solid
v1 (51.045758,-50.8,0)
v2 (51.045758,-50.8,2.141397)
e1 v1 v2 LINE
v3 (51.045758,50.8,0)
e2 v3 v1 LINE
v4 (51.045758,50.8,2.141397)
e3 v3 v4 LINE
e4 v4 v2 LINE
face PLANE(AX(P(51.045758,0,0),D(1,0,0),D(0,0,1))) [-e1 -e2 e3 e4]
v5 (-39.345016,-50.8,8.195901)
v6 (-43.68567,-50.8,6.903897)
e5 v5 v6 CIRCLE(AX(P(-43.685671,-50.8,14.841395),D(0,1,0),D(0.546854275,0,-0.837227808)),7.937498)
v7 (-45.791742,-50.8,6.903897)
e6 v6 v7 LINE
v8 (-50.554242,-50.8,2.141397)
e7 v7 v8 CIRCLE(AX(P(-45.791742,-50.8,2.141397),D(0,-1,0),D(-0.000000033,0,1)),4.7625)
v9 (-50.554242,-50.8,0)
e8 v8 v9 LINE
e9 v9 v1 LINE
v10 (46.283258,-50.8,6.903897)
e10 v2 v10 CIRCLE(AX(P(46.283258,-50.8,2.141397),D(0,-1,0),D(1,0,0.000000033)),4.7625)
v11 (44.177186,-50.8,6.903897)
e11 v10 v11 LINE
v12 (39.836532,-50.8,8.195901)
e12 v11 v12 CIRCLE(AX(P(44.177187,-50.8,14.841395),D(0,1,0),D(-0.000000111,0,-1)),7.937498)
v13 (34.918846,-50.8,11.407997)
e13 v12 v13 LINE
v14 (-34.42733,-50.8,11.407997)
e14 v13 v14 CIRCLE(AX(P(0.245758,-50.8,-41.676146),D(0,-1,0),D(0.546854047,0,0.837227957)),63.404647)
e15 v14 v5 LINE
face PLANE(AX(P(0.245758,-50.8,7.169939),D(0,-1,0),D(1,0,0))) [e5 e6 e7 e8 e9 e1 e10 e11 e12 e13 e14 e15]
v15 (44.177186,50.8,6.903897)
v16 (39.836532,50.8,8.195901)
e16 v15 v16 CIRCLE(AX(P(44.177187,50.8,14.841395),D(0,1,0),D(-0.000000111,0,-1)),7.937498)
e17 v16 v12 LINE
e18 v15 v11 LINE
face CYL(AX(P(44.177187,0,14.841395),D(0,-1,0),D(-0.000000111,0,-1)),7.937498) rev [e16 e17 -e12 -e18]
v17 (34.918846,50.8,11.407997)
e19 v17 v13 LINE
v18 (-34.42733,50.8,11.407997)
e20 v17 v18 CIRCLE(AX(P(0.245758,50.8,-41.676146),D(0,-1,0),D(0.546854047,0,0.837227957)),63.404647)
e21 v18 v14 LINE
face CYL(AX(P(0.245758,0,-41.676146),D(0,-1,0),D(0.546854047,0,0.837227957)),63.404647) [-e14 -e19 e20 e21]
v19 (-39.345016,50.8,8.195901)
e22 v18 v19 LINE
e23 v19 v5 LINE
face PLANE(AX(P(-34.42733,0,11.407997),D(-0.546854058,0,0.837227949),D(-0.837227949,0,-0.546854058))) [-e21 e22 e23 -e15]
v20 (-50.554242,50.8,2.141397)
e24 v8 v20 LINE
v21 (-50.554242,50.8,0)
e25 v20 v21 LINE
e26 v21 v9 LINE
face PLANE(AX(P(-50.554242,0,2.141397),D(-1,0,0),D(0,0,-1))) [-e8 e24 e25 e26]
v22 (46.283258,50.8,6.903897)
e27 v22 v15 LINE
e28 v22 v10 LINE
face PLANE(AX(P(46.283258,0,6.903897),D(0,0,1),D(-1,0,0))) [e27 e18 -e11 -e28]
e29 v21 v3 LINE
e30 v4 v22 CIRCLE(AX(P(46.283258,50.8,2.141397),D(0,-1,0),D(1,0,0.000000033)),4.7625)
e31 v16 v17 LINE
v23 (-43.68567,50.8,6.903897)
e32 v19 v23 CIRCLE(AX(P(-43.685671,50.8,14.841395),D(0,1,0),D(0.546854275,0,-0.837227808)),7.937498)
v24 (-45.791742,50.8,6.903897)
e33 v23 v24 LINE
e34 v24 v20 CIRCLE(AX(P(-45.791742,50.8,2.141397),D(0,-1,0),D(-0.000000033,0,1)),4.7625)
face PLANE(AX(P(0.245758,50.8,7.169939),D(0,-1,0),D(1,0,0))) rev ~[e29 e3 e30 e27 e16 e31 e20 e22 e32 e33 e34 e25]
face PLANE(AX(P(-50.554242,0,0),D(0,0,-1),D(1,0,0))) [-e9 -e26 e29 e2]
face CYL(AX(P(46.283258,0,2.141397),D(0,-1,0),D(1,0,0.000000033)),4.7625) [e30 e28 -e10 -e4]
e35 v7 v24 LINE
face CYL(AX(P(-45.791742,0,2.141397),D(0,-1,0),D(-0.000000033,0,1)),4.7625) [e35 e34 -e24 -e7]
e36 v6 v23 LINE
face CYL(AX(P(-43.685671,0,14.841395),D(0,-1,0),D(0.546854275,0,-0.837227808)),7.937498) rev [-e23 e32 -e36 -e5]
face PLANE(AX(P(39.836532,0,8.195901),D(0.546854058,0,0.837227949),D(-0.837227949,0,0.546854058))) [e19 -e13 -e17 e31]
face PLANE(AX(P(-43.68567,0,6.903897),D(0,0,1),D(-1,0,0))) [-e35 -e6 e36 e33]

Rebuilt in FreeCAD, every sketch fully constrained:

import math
import FreeCAD as App
import Part
import Sketcher

V = App.Vector
Q = App.Units.Quantity

doc = App.newDocument("Part")
body = doc.addObject("PartDesign::Body", "Body")

sketch1 = body.newObject("Sketcher::SketchObject", "Sketch")
sketch1.AttachmentSupport = (doc.getObject("XZ_Plane"), [""])
sketch1.MapMode = "FlatFace"
sketch1.addGeometry([
    Part.LineSegment(V(-50.6, 2.1, 0), V(-50.6, 0, 0)),
    Part.LineSegment(V(-50.6, 0, 0), V(51, 0, 0)),
    Part.LineSegment(V(51, 0, 0), V(51, 2.1, 0)),
    Part.ArcOfCircle(Part.Circle(V(46.3, 2.1, 0), V(0, 0, 1), 4.8), math.radians(0), math.radians(90)),
    Part.LineSegment(V(46.3, 6.9, 0), V(44.2, 6.9, 0)),
    Part.ArcOfCircle(Part.Circle(V(44.2, 14.8, 0), V(0, 0, 1), 7.9), math.radians(-123), math.radians(-90)),
    Part.LineSegment(V(39.8, 8.2, 0), V(34.9, 11.4, 0)),
    Part.ArcOfCircle(Part.Circle(V(0.2, -41.7, 0), V(0, 0, 1), 63.4), math.radians(57), math.radians(123)),
    Part.LineSegment(V(-34.4, 11.4, 0), V(-39.3, 8.2, 0)),
    Part.ArcOfCircle(Part.Circle(V(-43.7, 14.8, 0), V(0, 0, 1), 7.9), math.radians(-90), math.radians(-57)),
    Part.LineSegment(V(-43.7, 6.9, 0), V(-45.8, 6.9, 0)),
    Part.ArcOfCircle(Part.Circle(V(-45.8, 2.1, 0), V(0, 0, 1), 4.8), math.radians(90), math.radians(180)),
], False)
sketch1.addConstraint([
    Sketcher.Constraint("Coincident", 0, 2, 1, 1),
    Sketcher.Constraint("Coincident", 1, 2, 2, 1),
    Sketcher.Constraint("Tangent", 2, 2, 3, 1),
    Sketcher.Constraint("Tangent", 3, 2, 4, 1),
    Sketcher.Constraint("Tangent", 4, 2, 5, 2),
    Sketcher.Constraint("Tangent", 5, 1, 6, 1),
    Sketcher.Constraint("Tangent", 6, 2, 7, 1),
    Sketcher.Constraint("Tangent", 7, 2, 8, 1),
    Sketcher.Constraint("Tangent", 8, 2, 9, 2),
    Sketcher.Constraint("Tangent", 9, 1, 10, 1),
    Sketcher.Constraint("Tangent", 10, 2, 11, 1),
    Sketcher.Constraint("Tangent", 11, 2, 0, 1),
    Sketcher.Constraint("Vertical", 0),
    Sketcher.Constraint("Horizontal", 1),
    Sketcher.Constraint("Vertical", 2),
    Sketcher.Constraint("Horizontal", 4),
    Sketcher.Constraint("Horizontal", 10),
    Sketcher.Constraint("Equal", 5, 9),
    Sketcher.Constraint("Equal", 3, 11),
    Sketcher.Constraint("PointOnObject", 0, 2, -1),
    Sketcher.Constraint("Horizontal", 5, 3, 9, 3),
    Sketcher.Constraint("Horizontal", 6, 2, 7, 2),
    Sketcher.Constraint("Equal", 4, 10),
    Sketcher.Constraint("DistanceX", 1, 1, 1, 2, Q("4 in")),
    Sketcher.Constraint("Radius", 3, Q("0.1875 in")),
    Sketcher.Constraint("Radius", 5, Q("0.3124999 in")),
    Sketcher.Constraint("Radius", 7, Q("63.404647 mm")),
    Sketcher.Constraint("DistanceY", 7, 3, 3, 3, Q("1.7251001 in")),
    Sketcher.Constraint("DistanceX", 4, 2, 4, 1, Q("2.106072 mm")),
    Sketcher.Constraint("DistanceY", -1, 1, 5, 1, Q("8.195901 mm")),
    Sketcher.Constraint("DistanceX", 9, 3, -1, 1, Q("43.685671 mm")),
])
pad1 = body.newObject("PartDesign::Pad", "Pad")
pad1.Profile = sketch1
pad1.Type = "TwoLengths"
pad1.Length = Q("2 in")
pad1.Length2 = Q("2 in")

doc.recompute()
